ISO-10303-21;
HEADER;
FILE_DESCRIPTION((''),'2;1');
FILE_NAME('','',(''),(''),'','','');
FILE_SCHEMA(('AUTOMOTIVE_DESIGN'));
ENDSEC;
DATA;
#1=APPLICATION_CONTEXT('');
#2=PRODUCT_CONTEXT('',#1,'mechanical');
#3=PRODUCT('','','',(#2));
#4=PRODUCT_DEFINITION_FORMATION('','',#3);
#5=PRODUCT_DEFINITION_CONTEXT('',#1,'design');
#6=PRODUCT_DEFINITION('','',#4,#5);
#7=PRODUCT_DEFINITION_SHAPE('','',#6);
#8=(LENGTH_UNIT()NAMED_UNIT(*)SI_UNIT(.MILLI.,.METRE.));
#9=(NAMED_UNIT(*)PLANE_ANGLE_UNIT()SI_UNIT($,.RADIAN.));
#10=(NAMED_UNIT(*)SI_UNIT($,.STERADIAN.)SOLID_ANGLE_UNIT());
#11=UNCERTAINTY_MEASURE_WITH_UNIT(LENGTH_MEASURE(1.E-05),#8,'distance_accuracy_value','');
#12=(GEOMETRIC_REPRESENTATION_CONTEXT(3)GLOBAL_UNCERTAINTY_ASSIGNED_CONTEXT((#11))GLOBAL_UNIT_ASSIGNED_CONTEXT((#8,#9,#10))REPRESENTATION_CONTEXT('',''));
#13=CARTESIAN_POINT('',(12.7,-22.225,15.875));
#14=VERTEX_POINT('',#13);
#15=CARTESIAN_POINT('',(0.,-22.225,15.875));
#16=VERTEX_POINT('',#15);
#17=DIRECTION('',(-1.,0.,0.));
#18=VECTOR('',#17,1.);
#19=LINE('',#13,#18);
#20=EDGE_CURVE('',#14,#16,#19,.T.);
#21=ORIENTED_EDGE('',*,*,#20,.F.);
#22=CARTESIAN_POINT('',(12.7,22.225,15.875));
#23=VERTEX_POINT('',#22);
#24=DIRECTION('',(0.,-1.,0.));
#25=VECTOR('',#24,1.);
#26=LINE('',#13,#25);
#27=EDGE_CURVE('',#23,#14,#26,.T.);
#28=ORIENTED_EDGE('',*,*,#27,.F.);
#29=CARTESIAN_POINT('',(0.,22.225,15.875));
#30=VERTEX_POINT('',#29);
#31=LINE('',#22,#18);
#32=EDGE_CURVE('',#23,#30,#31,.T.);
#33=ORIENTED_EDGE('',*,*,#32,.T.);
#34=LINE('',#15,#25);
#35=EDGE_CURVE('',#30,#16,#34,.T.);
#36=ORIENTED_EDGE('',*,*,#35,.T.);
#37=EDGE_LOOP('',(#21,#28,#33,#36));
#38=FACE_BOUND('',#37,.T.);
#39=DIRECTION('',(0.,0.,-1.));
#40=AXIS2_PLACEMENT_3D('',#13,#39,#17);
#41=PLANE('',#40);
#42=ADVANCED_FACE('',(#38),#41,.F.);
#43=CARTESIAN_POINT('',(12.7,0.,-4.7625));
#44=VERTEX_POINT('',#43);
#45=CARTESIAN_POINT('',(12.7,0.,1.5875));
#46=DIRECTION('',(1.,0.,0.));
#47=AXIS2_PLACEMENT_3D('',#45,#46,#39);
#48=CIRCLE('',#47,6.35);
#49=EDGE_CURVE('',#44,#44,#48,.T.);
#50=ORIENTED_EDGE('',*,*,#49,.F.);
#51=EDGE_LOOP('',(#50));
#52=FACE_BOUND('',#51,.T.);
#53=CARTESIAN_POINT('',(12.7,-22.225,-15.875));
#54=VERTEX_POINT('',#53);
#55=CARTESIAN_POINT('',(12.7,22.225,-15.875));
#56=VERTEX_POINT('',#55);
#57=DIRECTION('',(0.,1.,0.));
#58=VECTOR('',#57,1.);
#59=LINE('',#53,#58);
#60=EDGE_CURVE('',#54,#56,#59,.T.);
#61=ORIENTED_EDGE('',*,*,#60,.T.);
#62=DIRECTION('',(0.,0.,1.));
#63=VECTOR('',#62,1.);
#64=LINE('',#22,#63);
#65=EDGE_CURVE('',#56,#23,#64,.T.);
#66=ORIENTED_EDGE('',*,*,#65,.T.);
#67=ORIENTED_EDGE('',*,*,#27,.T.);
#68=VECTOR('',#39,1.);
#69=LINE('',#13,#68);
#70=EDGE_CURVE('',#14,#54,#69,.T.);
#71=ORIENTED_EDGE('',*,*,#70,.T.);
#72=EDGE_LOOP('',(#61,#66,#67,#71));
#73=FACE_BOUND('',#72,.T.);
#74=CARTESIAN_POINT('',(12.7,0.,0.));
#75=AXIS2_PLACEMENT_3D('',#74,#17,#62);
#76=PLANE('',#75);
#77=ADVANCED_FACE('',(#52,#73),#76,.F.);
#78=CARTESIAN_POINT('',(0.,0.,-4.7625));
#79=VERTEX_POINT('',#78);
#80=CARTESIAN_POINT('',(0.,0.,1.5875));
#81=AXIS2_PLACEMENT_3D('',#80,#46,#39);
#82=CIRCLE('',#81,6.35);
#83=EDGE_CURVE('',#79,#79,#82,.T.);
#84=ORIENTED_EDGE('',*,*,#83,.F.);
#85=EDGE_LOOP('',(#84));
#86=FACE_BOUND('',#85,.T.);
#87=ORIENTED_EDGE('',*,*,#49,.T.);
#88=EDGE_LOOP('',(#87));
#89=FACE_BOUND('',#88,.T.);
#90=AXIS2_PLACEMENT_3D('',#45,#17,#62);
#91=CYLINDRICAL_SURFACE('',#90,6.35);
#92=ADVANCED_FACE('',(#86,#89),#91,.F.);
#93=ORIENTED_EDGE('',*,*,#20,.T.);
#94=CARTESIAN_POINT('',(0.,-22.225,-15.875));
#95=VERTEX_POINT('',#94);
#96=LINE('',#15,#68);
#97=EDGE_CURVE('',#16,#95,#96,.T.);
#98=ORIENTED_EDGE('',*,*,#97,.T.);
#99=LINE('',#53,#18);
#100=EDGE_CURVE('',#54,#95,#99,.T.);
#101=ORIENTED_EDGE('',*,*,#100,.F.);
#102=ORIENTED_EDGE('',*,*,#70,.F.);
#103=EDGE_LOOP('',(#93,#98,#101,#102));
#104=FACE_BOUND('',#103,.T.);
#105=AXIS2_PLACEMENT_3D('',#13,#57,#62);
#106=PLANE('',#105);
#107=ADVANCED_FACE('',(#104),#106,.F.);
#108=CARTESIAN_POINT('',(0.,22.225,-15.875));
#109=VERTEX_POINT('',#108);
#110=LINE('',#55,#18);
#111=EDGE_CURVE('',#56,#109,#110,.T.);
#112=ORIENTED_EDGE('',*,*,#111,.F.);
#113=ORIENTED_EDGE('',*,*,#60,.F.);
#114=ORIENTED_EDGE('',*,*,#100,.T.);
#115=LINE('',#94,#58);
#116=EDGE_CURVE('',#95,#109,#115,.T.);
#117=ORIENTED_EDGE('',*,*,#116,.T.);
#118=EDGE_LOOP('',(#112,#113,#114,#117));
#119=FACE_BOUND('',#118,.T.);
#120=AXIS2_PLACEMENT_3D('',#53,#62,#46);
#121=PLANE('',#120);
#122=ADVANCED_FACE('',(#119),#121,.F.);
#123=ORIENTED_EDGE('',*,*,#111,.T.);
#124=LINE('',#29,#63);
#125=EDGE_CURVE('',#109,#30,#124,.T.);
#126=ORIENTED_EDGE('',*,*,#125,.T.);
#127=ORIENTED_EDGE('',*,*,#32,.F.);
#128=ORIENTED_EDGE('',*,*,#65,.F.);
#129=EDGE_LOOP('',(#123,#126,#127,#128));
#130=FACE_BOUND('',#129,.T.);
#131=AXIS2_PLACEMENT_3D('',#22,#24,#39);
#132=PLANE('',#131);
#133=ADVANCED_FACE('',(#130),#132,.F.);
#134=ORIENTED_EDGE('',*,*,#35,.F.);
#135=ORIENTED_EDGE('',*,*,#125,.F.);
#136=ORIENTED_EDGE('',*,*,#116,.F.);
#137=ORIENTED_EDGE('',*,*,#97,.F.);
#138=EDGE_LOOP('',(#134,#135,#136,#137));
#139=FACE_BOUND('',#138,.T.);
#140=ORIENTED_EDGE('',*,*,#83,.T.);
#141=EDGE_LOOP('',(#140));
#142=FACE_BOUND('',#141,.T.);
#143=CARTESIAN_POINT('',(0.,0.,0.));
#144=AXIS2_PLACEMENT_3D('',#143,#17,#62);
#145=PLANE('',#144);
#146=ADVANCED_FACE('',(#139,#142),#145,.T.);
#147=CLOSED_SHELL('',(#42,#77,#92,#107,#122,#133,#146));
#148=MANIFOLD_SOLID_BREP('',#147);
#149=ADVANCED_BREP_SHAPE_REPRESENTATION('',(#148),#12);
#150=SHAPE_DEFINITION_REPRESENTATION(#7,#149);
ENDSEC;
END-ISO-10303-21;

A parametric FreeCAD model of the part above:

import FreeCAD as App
import Part
import Sketcher
Q = App.Units.Quantity


def add_polygon(sketch, points):
    """Adds a closed chain of lines whose ends are joined by coincident constraints."""
    first, n = sketch.GeometryCount, len(points)
    for a, b in zip(points, points[1:] + points[:1]):
        sketch.addGeometry(Part.LineSegment(App.Vector(*a, 0), App.Vector(*b, 0)), False)
    for i in range(n):
        sketch.addConstraint(Sketcher.Constraint("Coincident", first + i, 2, first + (i + 1) % n, 1))

doc = App.newDocument("Part")
body = doc.addObject("PartDesign::Body", "Body")

# Sketch on YZ plane
sketch1 = body.newObject("Sketcher::SketchObject", "Sketch")
sketch1.AttachmentSupport = (doc.getObject("YZ_Plane"), [""])
sketch1.MapMode = "FlatFace"
add_polygon(sketch1, [(22, 16), (-22, 16), (-22, -16), (22, -16)])  # lines 0-3
sketch1.addGeometry(Part.Circle(App.Vector(0, 2, 0), App.Vector(0, 0, 1), 6), False)  # 4
sketch1.addConstraint(Sketcher.Constraint("Horizontal", 0))
sketch1.addConstraint(Sketcher.Constraint("Vertical", 1))
sketch1.addConstraint(Sketcher.Constraint("Horizontal", 2))
sketch1.addConstraint(Sketcher.Constraint("Vertical", 3))
sketch1.addConstraint(Sketcher.Constraint("Symmetric", 0, 2, 2, 2, -1, 1))
sketch1.addConstraint(Sketcher.Constraint("PointOnObject", 4, 3, -2))
sketch1.addConstraint(Sketcher.Constraint("Diameter", 4, Q("0.5 in")))
sketch1.addConstraint(Sketcher.Constraint("DistanceX", 0, 2, 0, 1, Q("1.75 in")))
sketch1.addConstraint(Sketcher.Constraint("DistanceY", 1, 2, 1, 1, Q("1.25 in")))
sketch1.addConstraint(Sketcher.Constraint("DistanceY", -1, 1, 4, 3, Q("0.0625 in")))
pad1 = body.newObject("PartDesign::Pad", "Pad")
pad1.Profile = sketch1
pad1.Length = Q("0.5 in")

doc.recompute()
